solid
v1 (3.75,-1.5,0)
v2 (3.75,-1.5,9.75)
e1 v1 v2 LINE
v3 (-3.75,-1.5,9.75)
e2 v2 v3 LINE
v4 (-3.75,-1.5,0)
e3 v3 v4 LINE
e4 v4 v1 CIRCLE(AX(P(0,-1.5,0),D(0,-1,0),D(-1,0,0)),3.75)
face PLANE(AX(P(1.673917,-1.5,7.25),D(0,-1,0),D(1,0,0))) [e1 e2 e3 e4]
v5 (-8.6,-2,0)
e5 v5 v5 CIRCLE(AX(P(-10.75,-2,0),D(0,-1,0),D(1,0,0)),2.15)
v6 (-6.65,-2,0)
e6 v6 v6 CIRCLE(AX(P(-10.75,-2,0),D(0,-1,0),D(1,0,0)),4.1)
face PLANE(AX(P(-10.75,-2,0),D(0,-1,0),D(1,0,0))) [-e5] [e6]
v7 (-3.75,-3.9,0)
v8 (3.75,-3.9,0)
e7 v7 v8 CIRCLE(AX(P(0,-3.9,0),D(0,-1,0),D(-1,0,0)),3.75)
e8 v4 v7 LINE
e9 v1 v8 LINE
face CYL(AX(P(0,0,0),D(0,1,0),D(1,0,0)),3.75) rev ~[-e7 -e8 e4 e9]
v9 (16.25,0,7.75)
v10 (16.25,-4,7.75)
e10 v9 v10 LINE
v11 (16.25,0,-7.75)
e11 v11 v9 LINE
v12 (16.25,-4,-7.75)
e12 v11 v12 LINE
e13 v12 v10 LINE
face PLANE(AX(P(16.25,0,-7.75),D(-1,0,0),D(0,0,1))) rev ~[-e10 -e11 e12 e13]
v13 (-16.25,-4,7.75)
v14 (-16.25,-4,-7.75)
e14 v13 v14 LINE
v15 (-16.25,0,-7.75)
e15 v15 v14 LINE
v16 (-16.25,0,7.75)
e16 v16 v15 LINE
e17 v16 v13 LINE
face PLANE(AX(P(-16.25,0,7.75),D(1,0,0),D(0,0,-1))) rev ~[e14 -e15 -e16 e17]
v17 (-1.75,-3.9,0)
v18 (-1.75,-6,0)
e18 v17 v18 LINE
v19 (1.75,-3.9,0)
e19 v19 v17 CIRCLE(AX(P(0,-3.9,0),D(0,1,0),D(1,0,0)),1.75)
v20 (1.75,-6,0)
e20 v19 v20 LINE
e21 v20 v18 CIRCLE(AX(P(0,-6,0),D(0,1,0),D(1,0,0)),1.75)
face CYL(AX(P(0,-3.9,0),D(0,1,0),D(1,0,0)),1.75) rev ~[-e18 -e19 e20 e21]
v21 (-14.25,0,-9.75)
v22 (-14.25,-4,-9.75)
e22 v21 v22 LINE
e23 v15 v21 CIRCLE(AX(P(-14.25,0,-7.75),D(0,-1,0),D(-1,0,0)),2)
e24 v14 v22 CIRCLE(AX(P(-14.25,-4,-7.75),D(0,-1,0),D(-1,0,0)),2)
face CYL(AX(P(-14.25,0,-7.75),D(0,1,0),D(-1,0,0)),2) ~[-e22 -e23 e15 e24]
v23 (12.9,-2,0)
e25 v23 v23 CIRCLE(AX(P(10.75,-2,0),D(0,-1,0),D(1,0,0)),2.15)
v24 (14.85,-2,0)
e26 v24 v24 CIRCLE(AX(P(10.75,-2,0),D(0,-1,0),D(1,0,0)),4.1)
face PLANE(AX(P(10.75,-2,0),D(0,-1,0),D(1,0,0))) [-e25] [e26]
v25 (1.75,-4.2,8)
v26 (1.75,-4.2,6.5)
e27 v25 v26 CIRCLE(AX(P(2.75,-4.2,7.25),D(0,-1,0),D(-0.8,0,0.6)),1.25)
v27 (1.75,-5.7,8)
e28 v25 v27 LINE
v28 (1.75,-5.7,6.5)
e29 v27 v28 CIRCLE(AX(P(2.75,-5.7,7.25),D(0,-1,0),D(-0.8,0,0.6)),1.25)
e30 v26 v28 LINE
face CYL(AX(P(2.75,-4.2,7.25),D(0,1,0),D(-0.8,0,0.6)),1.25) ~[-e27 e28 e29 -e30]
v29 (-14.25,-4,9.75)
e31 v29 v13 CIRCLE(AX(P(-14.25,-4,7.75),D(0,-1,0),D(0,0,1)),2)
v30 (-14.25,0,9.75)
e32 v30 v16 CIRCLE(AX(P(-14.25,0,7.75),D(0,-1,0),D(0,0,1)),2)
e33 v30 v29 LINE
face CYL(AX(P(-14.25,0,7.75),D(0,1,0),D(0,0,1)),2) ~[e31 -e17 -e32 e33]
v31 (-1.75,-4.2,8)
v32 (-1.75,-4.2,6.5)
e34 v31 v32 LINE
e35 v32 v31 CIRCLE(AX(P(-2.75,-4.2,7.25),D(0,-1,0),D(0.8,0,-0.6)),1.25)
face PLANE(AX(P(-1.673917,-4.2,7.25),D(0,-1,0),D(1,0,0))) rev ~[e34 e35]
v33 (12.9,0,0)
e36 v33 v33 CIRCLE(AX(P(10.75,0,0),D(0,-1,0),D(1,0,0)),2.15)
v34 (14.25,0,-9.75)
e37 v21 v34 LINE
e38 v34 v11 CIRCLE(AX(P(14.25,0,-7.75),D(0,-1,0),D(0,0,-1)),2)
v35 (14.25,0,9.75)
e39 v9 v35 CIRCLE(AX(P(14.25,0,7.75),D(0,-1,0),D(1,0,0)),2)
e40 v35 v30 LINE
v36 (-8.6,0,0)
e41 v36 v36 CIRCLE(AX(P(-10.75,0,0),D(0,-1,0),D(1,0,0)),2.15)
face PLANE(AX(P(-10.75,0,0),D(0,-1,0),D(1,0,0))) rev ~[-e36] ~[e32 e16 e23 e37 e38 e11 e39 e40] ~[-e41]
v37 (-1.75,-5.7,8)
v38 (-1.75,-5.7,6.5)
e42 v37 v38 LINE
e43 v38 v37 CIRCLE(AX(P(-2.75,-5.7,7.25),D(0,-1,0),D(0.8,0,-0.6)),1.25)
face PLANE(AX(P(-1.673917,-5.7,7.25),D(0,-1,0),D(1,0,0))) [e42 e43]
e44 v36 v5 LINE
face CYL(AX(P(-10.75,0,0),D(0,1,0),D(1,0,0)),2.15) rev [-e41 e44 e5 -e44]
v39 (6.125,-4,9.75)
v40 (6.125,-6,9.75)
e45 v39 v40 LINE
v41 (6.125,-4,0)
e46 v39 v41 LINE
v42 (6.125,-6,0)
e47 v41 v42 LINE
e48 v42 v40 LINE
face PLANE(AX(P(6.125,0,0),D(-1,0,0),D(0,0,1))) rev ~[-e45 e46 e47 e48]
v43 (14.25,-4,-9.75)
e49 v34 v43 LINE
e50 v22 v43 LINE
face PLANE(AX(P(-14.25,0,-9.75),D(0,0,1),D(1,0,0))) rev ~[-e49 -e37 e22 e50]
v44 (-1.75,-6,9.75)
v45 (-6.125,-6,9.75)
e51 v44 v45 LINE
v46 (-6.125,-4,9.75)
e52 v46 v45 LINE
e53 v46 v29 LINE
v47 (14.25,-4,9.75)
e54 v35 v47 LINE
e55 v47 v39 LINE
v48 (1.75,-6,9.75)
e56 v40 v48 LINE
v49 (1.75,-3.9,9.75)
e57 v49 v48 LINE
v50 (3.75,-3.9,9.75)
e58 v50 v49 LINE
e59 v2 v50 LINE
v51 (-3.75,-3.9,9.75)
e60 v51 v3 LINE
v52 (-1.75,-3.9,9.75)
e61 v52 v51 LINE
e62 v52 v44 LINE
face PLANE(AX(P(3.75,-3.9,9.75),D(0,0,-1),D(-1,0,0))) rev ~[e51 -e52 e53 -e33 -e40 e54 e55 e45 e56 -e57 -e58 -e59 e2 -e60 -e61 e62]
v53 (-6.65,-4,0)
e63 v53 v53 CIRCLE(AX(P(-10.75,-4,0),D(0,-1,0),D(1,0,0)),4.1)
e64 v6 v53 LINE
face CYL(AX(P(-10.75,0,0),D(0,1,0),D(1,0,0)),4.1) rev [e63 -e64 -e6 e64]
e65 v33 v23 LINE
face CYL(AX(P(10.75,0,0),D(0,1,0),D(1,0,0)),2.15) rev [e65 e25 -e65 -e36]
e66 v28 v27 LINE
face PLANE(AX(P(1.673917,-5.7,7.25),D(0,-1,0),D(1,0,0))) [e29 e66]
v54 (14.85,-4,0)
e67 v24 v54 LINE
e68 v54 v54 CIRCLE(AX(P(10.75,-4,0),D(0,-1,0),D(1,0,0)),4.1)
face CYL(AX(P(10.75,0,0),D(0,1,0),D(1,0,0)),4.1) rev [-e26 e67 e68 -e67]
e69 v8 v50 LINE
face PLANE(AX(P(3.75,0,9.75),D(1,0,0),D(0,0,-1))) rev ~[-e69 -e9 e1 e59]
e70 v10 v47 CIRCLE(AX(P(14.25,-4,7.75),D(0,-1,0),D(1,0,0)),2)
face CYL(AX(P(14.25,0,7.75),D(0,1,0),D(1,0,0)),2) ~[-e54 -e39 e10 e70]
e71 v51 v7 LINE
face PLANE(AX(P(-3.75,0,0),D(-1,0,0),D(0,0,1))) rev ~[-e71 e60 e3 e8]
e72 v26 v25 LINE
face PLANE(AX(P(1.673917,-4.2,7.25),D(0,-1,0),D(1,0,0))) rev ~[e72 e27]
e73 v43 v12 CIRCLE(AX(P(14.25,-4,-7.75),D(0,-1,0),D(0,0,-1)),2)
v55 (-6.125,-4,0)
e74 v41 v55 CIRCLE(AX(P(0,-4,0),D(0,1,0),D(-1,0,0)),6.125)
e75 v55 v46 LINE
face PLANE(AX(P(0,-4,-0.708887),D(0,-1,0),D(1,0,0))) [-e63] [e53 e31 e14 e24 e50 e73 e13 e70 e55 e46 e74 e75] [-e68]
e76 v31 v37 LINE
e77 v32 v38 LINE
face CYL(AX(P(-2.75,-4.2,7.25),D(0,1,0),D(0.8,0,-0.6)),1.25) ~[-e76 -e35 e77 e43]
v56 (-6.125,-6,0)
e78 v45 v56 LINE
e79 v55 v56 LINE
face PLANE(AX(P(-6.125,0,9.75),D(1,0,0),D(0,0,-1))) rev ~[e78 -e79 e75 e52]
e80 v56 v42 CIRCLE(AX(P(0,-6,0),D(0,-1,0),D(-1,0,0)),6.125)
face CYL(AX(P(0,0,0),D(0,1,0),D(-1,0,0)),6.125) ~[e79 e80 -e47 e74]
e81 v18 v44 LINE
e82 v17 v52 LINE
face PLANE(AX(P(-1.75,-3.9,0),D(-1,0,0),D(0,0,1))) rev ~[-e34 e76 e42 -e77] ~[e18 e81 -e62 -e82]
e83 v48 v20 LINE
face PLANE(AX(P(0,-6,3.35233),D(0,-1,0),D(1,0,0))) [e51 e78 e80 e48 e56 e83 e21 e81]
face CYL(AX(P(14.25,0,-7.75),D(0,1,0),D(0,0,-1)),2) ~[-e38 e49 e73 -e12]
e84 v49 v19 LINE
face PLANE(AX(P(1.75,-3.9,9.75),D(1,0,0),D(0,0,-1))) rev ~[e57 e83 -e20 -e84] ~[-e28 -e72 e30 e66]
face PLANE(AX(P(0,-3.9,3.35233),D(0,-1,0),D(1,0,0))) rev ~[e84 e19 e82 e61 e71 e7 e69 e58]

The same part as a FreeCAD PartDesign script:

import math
import FreeCAD as App
import Part
import Sketcher
Q = App.Units.Quantity

doc = App.newDocument("Part")
body = doc.addObject("PartDesign::Body", "Body")

sketch1 = doc.addObject("Sketcher::SketchObject", "Sketch")
body.addObject(sketch1)
sketch1.AttachmentSupport = (doc.XZ_Plane, [""])
sketch1.MapMode = "FlatFace"
sketch1.addGeometry([
    Part.LineSegment(App.Vector(14.2, 9.8, 0), App.Vector(3.8, 9.8, 0)),
    Part.LineSegment(App.Vector(3.8, 9.8, 0), App.Vector(3.8, 0, 0)),
    Part.ArcOfCircle(Part.Circle(App.Vector(0, 0, 0), App.Vector(0, 0, 1), 3.8), math.radians(180), math.radians(360)),
    Part.LineSegment(App.Vector(-3.8, 0, 0), App.Vector(-3.8, 9.8, 0)),
    Part.LineSegment(App.Vector(-3.8, 9.8, 0), App.Vector(-14.2, 9.8, 0)),
    Part.ArcOfCircle(Part.Circle(App.Vector(-14.2, 7.8, 0), App.Vector(0, 0, 1), 2), math.radians(90), math.radians(180)),
    Part.LineSegment(App.Vector(-16.2, 7.8, 0), App.Vector(-16.2, -7.8, 0)),
    Part.ArcOfCircle(Part.Circle(App.Vector(-14.2, -7.8, 0), App.Vector(0, 0, 1), 2), math.radians(180), math.radians(270)),
    Part.LineSegment(App.Vector(-14.2, -9.8, 0), App.Vector(14.2, -9.8, 0)),
    Part.ArcOfCircle(Part.Circle(App.Vector(14.2, -7.8, 0), App.Vector(0, 0, 1), 2), math.radians(-90), math.radians(0)),
    Part.LineSegment(App.Vector(16.2, -7.8, 0), App.Vector(16.2, 7.8, 0)),
    Part.ArcOfCircle(Part.Circle(App.Vector(14.2, 7.8, 0), App.Vector(0, 0, 1), 2), math.radians(0), math.radians(90)),
    Part.Circle(App.Vector(-10.8, 0, 0), App.Vector(0, 0, 1), 4.1),
    Part.Circle(App.Vector(10.8, 0, 0), App.Vector(0, 0, 1), 4.1),
], False)
sketch1.addConstraint([
    Sketcher.Constraint("Coincident", 0, 2, 1, 1),
    Sketcher.Constraint("Tangent", 1, 2, 2, 2),
    Sketcher.Constraint("Tangent", 2, 1, 3, 1),
    Sketcher.Constraint("Coincident", 3, 2, 4, 1),
    Sketcher.Constraint("Tangent", 4, 2, 5, 1),
    Sketcher.Constraint("Tangent", 5, 2, 6, 1),
    Sketcher.Constraint("Tangent", 6, 2, 7, 1),
    Sketcher.Constraint("Tangent", 7, 2, 8, 1),
    Sketcher.Constraint("Tangent", 8, 2, 9, 1),
    Sketcher.Constraint("Tangent", 9, 2, 10, 1),
    Sketcher.Constraint("Tangent", 10, 2, 11, 1),
    Sketcher.Constraint("Tangent", 11, 2, 0, 1),
    Sketcher.Constraint("Horizontal", 0),
    Sketcher.Constraint("Vertical", 1),
    Sketcher.Constraint("Vertical", 3),
    Sketcher.Constraint("Horizontal", 4),
    Sketcher.Constraint("Vertical", 6),
    Sketcher.Constraint("Horizontal", 8),
    Sketcher.Constraint("Vertical", 10),
    Sketcher.Constraint("Coincident", 2, 3, -1, 1),
    Sketcher.Constraint("Equal", 5, 7),
    Sketcher.Constraint("Equal", 7, 9),
    Sketcher.Constraint("Equal", 9, 11),
    Sketcher.Constraint("Equal", 12, 13),
    Sketcher.Constraint("Symmetric", 5, 3, 9, 3, -1, 1),
    Sketcher.Constraint("Symmetric", 12, 3, 13, 3, -1, 1),
    Sketcher.Constraint("PointOnObject", 12, 3, -1),
    Sketcher.Constraint("Horizontal", 5, 3, 11, 3),
    Sketcher.Constraint("Radius", 5, Q("2 mm")),
    Sketcher.Constraint("Diameter", 12, Q("8.2 mm")),
    Sketcher.Constraint("Radius", 2, Q("3.75 mm")),
    Sketcher.Constraint("DistanceX", 0, 2, 0, 1, Q("10.5 mm")),
    Sketcher.Constraint("DistanceY", 6, 2, 6, 1, Q("15.5 mm")),
    Sketcher.Constraint("DistanceX", 12, 3, 9, 3, Q("25 mm")),
])
pad1 = doc.addObject("PartDesign::Pad", "Pad")
body.addObject(pad1)
pad1.Profile = sketch1
pad1.Length = 4

sketch2 = doc.addObject("Sketcher::SketchObject", "Sketch001")
body.addObject(sketch2)
sketch2.AttachmentSupport = (doc.XZ_Plane, [""])
sketch2.MapMode = "FlatFace"
sketch2.addGeometry([
    Part.LineSegment(App.Vector(-3.8, 9.8, 0), App.Vector(-3.8, 0, 0)),
    Part.ArcOfCircle(Part.Circle(App.Vector(0, 0, 0), App.Vector(0, 0, 1), 3.8), math.radians(180), math.radians(360)),
    Part.LineSegment(App.Vector(3.8, 0, 0), App.Vector(3.8, 9.8, 0)),
    Part.LineSegment(App.Vector(3.8, 9.8, 0), App.Vector(-3.8, 9.8, 0)),
], False)
sketch2.addConstraint([
    Sketcher.Constraint("Tangent", 0, 2, 1, 1),
    Sketcher.Constraint("Tangent", 1, 2, 2, 1),
    Sketcher.Constraint("Coincident", 2, 2, 3, 1),
    Sketcher.Constraint("Coincident", 3, 2, 0, 1),
    Sketcher.Constraint("Vertical", 0),
    Sketcher.Constraint("Vertical", 2),
    Sketcher.Constraint("Horizontal", 3),
    Sketcher.Constraint("Coincident", 1, 3, -1, 1),
    Sketcher.Constraint("Radius", 1, Q("3.75 mm")),
    Sketcher.Constraint("DistanceY", 0, 2, 0, 1, Q("9.75 mm")),
])
pad2 = doc.addObject("PartDesign::Pad", "Pad001")
body.addObject(pad2)
pad2.Profile = sketch2
pad2.Length = 1.5

sketch3 = doc.addObject("Sketcher::SketchObject", "Sketch002")
body.addObject(sketch3)
sketch3.AttachmentSupport = (doc.XZ_Plane, [""])
sketch3.MapMode = "FlatFace"
sketch3.addGeometry([
    Part.LineSegment(App.Vector(6.1, 9.8, 0), App.Vector(3.8, 9.8, 0)),
    Part.LineSegment(App.Vector(3.8, 9.8, 0), App.Vector(3.8, 0, 0)),
    Part.ArcOfCircle(Part.Circle(App.Vector(0, 0, 0), App.Vector(0, 0, 1), 3.8), math.radians(180), math.radians(360)),
    Part.LineSegment(App.Vector(-3.8, 0, 0), App.Vector(-3.8, 9.8, 0)),
    Part.LineSegment(App.Vector(-3.8, 9.8, 0), App.Vector(-6.1, 9.8, 0)),
    Part.LineSegment(App.Vector(-6.1, 9.8, 0), App.Vector(-6.1, 0, 0)),
    Part.ArcOfCircle(Part.Circle(App.Vector(0, 0, 0), App.Vector(0, 0, 1), 6.1), math.radians(180), math.radians(360)),
    Part.LineSegment(App.Vector(6.1, 0, 0), App.Vector(6.1, 9.8, 0)),
], False)
sketch3.addConstraint([
    Sketcher.Constraint("Coincident", 0, 2, 1, 1),
    Sketcher.Constraint("Tangent", 1, 2, 2, 2),
    Sketcher.Constraint("Tangent", 2, 1, 3, 1),
    Sketcher.Constraint("Coincident", 3, 2, 4, 1),
    Sketcher.Constraint("Coincident", 4, 2, 5, 1),
    Sketcher.Constraint("Tangent", 5, 2, 6, 1),
    Sketcher.Constraint("Tangent", 6, 2, 7, 1),
    Sketcher.Constraint("Coincident", 7, 2, 0, 1),
    Sketcher.Constraint("Horizontal", 0),
    Sketcher.Constraint("Vertical", 1),
    Sketcher.Constraint("Vertical", 3),
    Sketcher.Constraint("Horizontal", 4),
    Sketcher.Constraint("Vertical", 5),
    Sketcher.Constraint("Vertical", 7),
    Sketcher.Constraint("Coincident", 2, 3, -1, 1),
    Sketcher.Constraint("Coincident", 6, 3, -1, 1),
    Sketcher.Constraint("Horizontal", 0, 2, 3, 2),
    Sketcher.Constraint("Radius", 2, Q("3.75 mm")),
    Sketcher.Constraint("Radius", 6, Q("6.125 mm")),
    Sketcher.Constraint("DistanceY", 1, 2, 1, 1, Q("9.75 mm")),
])
pad3 = doc.addObject("PartDesign::Pad", "Pad002")
body.addObject(pad3)
pad3.Profile = sketch3
pad3.Length = 6

sketch4 = doc.addObject("Sketcher::SketchObject", "Sketch003")
body.addObject(sketch4)
sketch4.AttachmentSupport = (doc.XZ_Plane, [""])
sketch4.MapMode = "FlatFace"
sketch4.addGeometry([
    Part.Circle(App.Vector(-10.8, 0, 0), App.Vector(0, 0, 1), 4.1),
    Part.Circle(App.Vector(-10.8, 0, 0), App.Vector(0, 0, 1), 2.1),
    Part.Circle(App.Vector(10.8, 0, 0), App.Vector(0, 0, 1), 4.1),
    Part.Circle(App.Vector(10.8, 0, 0), App.Vector(0, 0, 1), 2.1),
], False)
sketch4.addConstraint([
    Sketcher.Constraint("Coincident", 1, 3, 0, 3),
    Sketcher.Constraint("Coincident", 3, 3, 2, 3),
    Sketcher.Constraint("Equal", 0, 2),
    Sketcher.Constraint("Equal", 1, 3),
    Sketcher.Constraint("Symmetric", 0, 3, 2, 3, -1, 1),
    Sketcher.Constraint("PointOnObject", 0, 3, -1),
    Sketcher.Constraint("Diameter", 0, Q("8.2 mm")),
    Sketcher.Constraint("Diameter", 1, Q("4.3 mm")),
    Sketcher.Constraint("DistanceX", 0, 3, 2, 3, Q("21.5 mm")),
])
pad4 = doc.addObject("PartDesign::Pad", "Pad003")
body.addObject(pad4)
pad4.Profile = sketch4
pad4.Length = 2

sketch5 = doc.addObject("Sketcher::SketchObject", "Sketch004")
body.addObject(sketch5)
sketch5.AttachmentSupport = (doc.XZ_Plane, [""])
sketch5.MapMode = "FlatFace"
sketch5.AttachmentOffset = App.Placement(App.Vector(0, 0, 3.9), App.Rotation())
sketch5.addGeometry([
    Part.ArcOfCircle(Part.Circle(App.Vector(0, 0, 0), App.Vector(0, 0, 1), 1.8), math.radians(180), math.radians(360)),
    Part.LineSegment(App.Vector(-1.8, 0, 0), App.Vector(-1.8, 9.8, 0)),
    Part.LineSegment(App.Vector(-1.8, 9.8, 0), App.Vector(-3.8, 9.8, 0)),
    Part.LineSegment(App.Vector(-3.8, 9.8, 0), App.Vector(-3.8, 0, 0)),
    Part.ArcOfCircle(Part.Circle(App.Vector(0, 0, 0), App.Vector(0, 0, 1), 3.8), math.radians(180), math.radians(360)),
    Part.LineSegment(App.Vector(3.8, 0, 0), App.Vector(3.8, 9.8, 0)),
    Part.LineSegment(App.Vector(3.8, 9.8, 0), App.Vector(1.8, 9.8, 0)),
    Part.LineSegment(App.Vector(1.8, 9.8, 0), App.Vector(1.8, 0, 0)),
], False)
sketch5.addConstraint([
    Sketcher.Constraint("Tangent", 0, 1, 1, 1),
    Sketcher.Constraint("Coincident", 1, 2, 2, 1),
    Sketcher.Constraint("Coincident", 2, 2, 3, 1),
    Sketcher.Constraint("Tangent", 3, 2, 4, 1),
    Sketcher.Constraint("Tangent", 4, 2, 5, 1),
    Sketcher.Constraint("Coincident", 5, 2, 6, 1),
    Sketcher.Constraint("Coincident", 6, 2, 7, 1),
    Sketcher.Constraint("Tangent", 7, 2, 0, 2),
    Sketcher.Constraint("Vertical", 1),
    Sketcher.Constraint("Horizontal", 2),
    Sketcher.Constraint("Vertical", 3),
    Sketcher.Constraint("Vertical", 5),
    Sketcher.Constraint("Horizontal", 6),
    Sketcher.Constraint("Vertical", 7),
    Sketcher.Constraint("Coincident", 0, 3, -1, 1),
    Sketcher.Constraint("Coincident", 4, 3, -1, 1),
    Sketcher.Constraint("Horizontal", 2, 2, 5, 2),
    Sketcher.Constraint("DistanceX", 2, 2, 2, 1, Q("2 mm")),
    Sketcher.Constraint("Radius", 0, Q("1.75 mm")),
    Sketcher.Constraint("DistanceY", 1, 1, 1, 2, Q("9.75 mm")),
])
pad5 = doc.addObject("PartDesign::Pad", "Pad004")
body.addObject(pad5)
pad5.Profile = sketch5
pad5.Length = 2.1

sketch6 = doc.addObject("Sketcher::SketchObject", "Sketch005")
body.addObject(sketch6)
sketch6.AttachmentSupport = (doc.XZ_Plane, [""])
sketch6.MapMode = "FlatFace"
sketch6.AttachmentOffset = App.Placement(App.Vector(0, 0, 4.2), App.Rotation())
sketch6.addGeometry([
    Part.LineSegment(App.Vector(-1.8, 8, 0), App.Vector(-1.8, 6.5, 0)),
    Part.ArcOfCircle(Part.Circle(App.Vector(-2.8, 7.2, 0), App.Vector(0, 0, 1), 1.2), math.radians(-37), math.radians(37)),
    Part.ArcOfCircle(Part.Circle(App.Vector(2.8, 7.2, 0), App.Vector(0, 0, 1), 1.2), math.radians(143), math.radians(217)),
    Part.LineSegment(App.Vector(1.8, 6.5, 0), App.Vector(1.8, 8, 0)),
], False)
sketch6.addConstraint([
    Sketcher.Constraint("Coincident", 0, 1, 1, 2),
    Sketcher.Constraint("Coincident", 1, 1, 0, 2),
    Sketcher.Constraint("Coincident", 2, 1, 3, 2),
    Sketcher.Constraint("Coincident", 3, 1, 2, 2),
    Sketcher.Constraint("Vertical", 0),
    Sketcher.Constraint("Vertical", 3),
    Sketcher.Constraint("Equal", 1, 2),
    Sketcher.Constraint("Symmetric", 1, 3, 2, 3, -2),
    Sketcher.Constraint("Horizontal", 0, 1, 2, 1),
    Sketcher.Constraint("Radius", 1, Q("1.25 mm")),
    Sketcher.Constraint("DistanceY", 0, 2, 0, 1, Q("1.5 mm")),
    Sketcher.Constraint("DistanceY", -1, 1, 0, 1, Q("8 mm")),
    Sketcher.Constraint("DistanceX", 1, 3, 2, 3, Q("5.5 mm")),
])
pad6 = doc.addObject("PartDesign::Pad", "Pad005")
body.addObject(pad6)
pad6.Profile = sketch6
pad6.Length = 1.5

doc.recompute()
